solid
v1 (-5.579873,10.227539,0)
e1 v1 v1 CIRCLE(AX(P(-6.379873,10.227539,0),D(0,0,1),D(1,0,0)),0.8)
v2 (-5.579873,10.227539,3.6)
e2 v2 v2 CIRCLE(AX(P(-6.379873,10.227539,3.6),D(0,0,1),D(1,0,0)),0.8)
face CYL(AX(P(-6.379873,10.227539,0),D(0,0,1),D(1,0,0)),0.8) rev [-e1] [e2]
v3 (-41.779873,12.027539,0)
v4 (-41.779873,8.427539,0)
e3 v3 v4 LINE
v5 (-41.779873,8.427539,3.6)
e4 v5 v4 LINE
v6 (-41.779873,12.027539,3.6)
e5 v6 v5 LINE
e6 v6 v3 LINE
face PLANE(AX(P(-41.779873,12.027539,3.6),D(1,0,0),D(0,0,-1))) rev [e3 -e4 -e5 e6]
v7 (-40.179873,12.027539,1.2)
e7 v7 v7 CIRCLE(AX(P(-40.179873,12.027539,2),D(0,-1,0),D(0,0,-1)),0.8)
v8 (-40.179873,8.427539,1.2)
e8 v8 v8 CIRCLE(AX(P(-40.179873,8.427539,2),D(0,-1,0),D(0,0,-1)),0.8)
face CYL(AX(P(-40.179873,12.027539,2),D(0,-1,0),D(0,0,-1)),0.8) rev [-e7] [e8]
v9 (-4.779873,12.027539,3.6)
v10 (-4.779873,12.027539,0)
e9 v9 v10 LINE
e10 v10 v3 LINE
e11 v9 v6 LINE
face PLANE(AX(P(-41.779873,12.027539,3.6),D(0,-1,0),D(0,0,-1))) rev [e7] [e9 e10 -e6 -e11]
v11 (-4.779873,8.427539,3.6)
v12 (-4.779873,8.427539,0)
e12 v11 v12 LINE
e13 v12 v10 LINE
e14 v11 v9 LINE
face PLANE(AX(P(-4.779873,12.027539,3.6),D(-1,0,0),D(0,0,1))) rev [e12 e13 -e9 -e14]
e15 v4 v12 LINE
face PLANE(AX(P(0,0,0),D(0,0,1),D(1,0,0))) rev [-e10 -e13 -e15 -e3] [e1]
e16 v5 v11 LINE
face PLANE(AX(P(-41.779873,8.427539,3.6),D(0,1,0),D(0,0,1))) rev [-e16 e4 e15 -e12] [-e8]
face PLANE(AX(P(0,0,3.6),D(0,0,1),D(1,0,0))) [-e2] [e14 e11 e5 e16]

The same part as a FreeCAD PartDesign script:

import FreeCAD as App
import Part
import Sketcher
from FreeCAD import Vector
Q = App.Units.Quantity

doc = App.newDocument("Part")
body = doc.addObject("PartDesign::Body", "Body")

sketch1 = body.newObject("Sketcher::SketchObject", "Sketch")
sketch1.AttachmentSupport = (doc.getObject("XY_Plane"), [""])
sketch1.MapMode = "FlatFace"
sketch1.addGeometry(Part.LineSegment(Vector(-41.8, 12, 0), Vector(-41.8, 8.4, 0)), False)
sketch1.addGeometry(Part.LineSegment(Vector(-41.8, 8.4, 0), Vector(-4.8, 8.4, 0)), False)
sketch1.addGeometry(Part.LineSegment(Vector(-4.8, 8.4, 0), Vector(-4.8, 12, 0)), False)
sketch1.addGeometry(Part.LineSegment(Vector(-4.8, 12, 0), Vector(-41.8, 12, 0)), False)
sketch1.addConstraint(Sketcher.Constraint("Coincident", 0, 2, 1, 1))
sketch1.addConstraint(Sketcher.Constraint("Coincident", 1, 2, 2, 1))
sketch1.addConstraint(Sketcher.Constraint("Coincident", 2, 2, 3, 1))
sketch1.addConstraint(Sketcher.Constraint("Coincident", 3, 2, 0, 1))
sketch1.addConstraint(Sketcher.Constraint("Vertical", 0))
sketch1.addConstraint(Sketcher.Constraint("Horizontal", 1))
sketch1.addConstraint(Sketcher.Constraint("Vertical", 2))
sketch1.addConstraint(Sketcher.Constraint("Horizontal", 3))
sketch1.addConstraint(Sketcher.Constraint("DistanceX", 1, 1, 1, 2, Q("37 mm")))
sketch1.addConstraint(Sketcher.Constraint("DistanceY", 0, 2, 0, 1, Q("3.6 mm")))
sketch1.addConstraint(Sketcher.Constraint("DistanceY", -1, 1, 0, 2, Q("8.427539 mm")))
sketch1.addConstraint(Sketcher.Constraint("DistanceX", 0, 2, -1, 1, Q("41.779873 mm")))
pad1 = body.newObject("PartDesign::Pad", "Pad")
pad1.Profile = sketch1
pad1.Length = 3.6

sketch2 = body.newObject("Sketcher::SketchObject", "Sketch001")
sketch2.AttachmentSupport = (doc.getObject("XY_Plane"), [""])
sketch2.MapMode = "FlatFace"
sketch2.AttachmentOffset = App.Placement(Vector(0, 0, 3.6), App.Rotation())
sketch2.addGeometry(Part.Circle(Vector(-6.4, 10.2, 0), Vector(0, 0, 1), 0.8), False)
sketch2.addConstraint(Sketcher.Constraint("Diameter", 0, Q("1.6 mm")))
sketch2.addConstraint(Sketcher.Constraint("DistanceY", -1, 1, 0, 3, Q("10.227539 mm")))
sketch2.addConstraint(Sketcher.Constraint("DistanceX", 0, 3, -1, 1, Q("6.379873 mm")))
pocket1 = body.newObject("PartDesign::Pocket", "Pocket")
pocket1.Profile = sketch2
pocket1.Length = 3.6

sketch3 = body.newObject("Sketcher::SketchObject", "Sketch002")
sketch3.AttachmentSupport = (doc.getObject("XZ_Plane"), [""])
sketch3.MapMode = "FlatFace"
sketch3.AttachmentOffset = App.Placement(Vector(0, 0, -8.427539), App.Rotation())
sketch3.addGeometry(Part.Circle(Vector(-40.2, 2, 0), Vector(0, 0, 1), 0.8), False)
sketch3.addConstraint(Sketcher.Constraint("Diameter", 0, Q("1.6 mm")))
sketch3.addConstraint(Sketcher.Constraint("DistanceY", -1, 1, 0, 3, Q("2 mm")))
sketch3.addConstraint(Sketcher.Constraint("DistanceX", 0, 3, -1, 1, Q("40.179873 mm")))
pocket2 = body.newObject("PartDesign::Pocket", "Pocket001")
pocket2.Profile = sketch3
pocket2.Length = 3.6

doc.recompute()
